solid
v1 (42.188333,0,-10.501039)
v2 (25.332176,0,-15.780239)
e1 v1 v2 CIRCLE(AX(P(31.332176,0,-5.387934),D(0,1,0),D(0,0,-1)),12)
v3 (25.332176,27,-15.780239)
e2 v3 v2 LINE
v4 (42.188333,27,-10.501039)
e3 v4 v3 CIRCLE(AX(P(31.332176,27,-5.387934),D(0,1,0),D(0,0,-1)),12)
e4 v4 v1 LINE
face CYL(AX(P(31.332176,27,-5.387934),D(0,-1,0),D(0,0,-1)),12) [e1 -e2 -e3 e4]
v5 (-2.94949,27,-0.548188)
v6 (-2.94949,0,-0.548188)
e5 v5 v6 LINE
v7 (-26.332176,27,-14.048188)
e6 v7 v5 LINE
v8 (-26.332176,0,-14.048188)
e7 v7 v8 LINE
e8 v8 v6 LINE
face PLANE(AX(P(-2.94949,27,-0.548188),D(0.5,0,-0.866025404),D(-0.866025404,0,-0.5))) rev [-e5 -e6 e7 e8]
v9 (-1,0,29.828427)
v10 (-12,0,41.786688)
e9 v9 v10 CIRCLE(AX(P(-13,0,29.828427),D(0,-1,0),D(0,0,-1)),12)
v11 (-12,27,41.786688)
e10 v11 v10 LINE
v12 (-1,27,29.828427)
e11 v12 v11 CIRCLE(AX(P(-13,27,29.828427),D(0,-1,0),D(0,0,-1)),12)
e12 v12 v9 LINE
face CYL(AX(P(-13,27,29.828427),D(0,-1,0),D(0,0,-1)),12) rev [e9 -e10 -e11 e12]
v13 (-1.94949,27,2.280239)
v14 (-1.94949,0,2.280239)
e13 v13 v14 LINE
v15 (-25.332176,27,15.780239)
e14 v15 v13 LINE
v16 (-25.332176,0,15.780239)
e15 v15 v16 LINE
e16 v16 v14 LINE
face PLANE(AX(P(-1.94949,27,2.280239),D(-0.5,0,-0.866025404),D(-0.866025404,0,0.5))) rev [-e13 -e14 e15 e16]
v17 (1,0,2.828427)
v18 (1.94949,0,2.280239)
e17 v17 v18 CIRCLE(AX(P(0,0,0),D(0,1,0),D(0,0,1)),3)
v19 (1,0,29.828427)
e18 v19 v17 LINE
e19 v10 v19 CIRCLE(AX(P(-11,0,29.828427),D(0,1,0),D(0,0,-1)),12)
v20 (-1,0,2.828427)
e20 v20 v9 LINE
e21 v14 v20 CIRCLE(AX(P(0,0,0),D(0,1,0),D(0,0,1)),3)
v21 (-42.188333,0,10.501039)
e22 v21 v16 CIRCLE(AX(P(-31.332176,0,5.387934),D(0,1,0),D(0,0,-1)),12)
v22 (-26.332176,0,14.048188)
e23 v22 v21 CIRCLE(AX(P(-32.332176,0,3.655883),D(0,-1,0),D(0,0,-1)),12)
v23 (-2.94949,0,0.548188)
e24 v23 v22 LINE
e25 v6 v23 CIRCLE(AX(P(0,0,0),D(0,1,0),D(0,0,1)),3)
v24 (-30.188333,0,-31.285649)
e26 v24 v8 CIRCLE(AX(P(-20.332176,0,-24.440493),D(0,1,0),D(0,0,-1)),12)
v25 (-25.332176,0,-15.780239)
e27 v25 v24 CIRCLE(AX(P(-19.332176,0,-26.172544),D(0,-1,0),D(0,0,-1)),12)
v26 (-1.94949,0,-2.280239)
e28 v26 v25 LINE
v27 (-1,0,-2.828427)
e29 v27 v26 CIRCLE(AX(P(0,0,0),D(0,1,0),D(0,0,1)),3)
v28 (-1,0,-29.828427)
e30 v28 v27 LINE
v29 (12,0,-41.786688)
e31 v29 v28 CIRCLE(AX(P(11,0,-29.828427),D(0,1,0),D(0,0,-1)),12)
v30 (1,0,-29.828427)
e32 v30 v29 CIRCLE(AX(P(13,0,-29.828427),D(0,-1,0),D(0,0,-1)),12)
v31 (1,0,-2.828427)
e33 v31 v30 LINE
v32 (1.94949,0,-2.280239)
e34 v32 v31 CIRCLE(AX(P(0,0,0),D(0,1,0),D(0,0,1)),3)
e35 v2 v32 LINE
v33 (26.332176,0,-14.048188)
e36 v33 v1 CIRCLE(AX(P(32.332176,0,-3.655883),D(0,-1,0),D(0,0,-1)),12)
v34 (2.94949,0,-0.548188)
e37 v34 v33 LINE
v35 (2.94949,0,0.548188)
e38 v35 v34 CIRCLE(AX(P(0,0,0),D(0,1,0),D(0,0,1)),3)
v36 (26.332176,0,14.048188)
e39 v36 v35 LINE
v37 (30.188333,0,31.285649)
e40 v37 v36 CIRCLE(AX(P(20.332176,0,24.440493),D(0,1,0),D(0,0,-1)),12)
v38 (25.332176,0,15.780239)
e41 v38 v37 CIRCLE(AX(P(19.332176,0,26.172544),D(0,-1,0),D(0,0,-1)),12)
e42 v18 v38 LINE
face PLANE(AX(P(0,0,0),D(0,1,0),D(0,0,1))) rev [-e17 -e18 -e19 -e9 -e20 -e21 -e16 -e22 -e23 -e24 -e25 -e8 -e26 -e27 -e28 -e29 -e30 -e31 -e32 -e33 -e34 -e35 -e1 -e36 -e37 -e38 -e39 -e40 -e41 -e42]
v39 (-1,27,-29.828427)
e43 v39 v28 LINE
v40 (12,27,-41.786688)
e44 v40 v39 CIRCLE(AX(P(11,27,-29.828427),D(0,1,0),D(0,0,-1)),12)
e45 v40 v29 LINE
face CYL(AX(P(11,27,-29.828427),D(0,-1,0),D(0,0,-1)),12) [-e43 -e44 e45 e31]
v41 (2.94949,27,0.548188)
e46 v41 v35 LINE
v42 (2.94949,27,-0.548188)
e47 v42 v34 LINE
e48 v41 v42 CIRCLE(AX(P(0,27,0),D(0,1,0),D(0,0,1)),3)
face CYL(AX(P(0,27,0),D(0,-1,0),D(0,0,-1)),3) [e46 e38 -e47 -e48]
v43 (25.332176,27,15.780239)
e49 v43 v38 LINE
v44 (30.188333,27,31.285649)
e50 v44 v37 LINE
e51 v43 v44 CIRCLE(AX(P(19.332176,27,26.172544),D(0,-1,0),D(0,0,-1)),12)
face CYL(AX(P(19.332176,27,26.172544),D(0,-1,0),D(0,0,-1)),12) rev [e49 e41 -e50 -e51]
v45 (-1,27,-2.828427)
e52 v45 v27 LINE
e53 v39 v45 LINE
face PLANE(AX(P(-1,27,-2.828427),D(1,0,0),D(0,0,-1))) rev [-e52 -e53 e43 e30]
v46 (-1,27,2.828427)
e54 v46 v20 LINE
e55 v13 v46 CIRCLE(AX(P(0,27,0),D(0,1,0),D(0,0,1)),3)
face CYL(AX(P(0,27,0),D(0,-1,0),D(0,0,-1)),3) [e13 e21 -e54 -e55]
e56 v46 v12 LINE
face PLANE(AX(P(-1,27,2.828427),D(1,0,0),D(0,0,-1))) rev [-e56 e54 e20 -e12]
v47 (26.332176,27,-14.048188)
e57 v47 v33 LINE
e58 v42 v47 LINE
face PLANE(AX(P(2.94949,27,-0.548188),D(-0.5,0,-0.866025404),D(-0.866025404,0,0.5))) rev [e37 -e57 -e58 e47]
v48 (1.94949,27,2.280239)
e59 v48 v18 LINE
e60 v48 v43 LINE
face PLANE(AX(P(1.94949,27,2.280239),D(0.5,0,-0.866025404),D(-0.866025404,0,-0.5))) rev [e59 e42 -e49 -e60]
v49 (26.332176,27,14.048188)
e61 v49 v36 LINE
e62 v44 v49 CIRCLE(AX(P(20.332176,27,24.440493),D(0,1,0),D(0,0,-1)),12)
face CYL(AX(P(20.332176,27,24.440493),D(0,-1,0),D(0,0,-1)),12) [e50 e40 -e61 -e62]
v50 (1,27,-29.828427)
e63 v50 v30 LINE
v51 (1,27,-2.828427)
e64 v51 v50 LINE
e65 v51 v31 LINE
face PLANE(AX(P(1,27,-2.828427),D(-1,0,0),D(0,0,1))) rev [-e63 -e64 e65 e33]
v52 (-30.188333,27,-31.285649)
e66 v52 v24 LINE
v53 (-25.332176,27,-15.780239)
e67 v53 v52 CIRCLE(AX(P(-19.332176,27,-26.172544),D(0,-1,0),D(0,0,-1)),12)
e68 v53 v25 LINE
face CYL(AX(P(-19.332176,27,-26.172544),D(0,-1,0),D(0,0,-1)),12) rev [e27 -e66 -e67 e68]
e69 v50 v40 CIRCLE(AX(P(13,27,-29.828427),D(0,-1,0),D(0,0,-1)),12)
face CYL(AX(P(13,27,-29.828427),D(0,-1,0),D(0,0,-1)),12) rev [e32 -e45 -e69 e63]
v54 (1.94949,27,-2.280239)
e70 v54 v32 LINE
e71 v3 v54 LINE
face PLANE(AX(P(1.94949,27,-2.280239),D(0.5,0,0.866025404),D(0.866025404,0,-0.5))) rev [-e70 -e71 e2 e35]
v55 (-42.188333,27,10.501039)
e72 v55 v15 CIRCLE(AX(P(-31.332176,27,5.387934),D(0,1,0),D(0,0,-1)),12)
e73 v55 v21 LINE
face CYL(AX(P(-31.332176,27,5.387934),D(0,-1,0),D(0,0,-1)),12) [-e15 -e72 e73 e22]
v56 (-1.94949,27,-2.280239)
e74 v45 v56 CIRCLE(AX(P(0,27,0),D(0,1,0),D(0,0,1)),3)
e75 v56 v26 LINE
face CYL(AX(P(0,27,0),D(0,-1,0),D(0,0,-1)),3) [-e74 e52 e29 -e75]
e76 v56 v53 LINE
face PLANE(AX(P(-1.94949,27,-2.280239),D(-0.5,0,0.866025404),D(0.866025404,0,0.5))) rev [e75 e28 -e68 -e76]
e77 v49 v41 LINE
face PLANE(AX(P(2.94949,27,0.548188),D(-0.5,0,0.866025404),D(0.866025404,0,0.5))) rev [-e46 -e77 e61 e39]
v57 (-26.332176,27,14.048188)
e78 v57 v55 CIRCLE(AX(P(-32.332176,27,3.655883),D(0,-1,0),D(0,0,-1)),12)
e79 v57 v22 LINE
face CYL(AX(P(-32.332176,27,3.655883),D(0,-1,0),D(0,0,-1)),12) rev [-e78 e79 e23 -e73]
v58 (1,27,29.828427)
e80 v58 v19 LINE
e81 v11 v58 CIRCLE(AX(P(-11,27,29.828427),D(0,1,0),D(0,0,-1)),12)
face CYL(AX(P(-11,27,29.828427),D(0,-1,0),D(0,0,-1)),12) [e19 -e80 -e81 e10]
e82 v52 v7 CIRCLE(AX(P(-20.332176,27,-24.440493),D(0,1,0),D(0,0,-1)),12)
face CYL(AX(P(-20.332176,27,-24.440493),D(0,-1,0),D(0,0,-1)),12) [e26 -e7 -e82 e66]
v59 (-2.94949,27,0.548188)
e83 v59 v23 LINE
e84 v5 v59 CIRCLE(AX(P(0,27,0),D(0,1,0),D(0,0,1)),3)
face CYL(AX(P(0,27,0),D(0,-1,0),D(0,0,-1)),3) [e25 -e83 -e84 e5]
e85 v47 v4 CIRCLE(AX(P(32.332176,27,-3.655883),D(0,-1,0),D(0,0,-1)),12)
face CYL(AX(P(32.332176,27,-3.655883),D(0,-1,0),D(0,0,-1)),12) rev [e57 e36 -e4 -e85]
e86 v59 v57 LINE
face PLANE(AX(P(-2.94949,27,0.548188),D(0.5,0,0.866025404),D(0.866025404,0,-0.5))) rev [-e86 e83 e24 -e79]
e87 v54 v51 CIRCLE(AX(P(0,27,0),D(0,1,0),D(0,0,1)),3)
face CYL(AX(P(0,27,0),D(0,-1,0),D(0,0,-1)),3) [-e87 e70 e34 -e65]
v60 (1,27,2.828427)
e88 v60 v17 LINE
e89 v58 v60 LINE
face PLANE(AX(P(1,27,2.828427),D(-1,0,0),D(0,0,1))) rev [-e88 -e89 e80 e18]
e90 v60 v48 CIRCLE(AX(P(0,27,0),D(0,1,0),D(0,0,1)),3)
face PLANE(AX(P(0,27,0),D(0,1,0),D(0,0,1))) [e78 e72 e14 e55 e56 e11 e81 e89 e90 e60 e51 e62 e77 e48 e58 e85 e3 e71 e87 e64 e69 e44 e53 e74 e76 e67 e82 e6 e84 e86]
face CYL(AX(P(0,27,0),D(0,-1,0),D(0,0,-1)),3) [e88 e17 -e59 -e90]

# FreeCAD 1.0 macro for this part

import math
import FreeCAD as App
import Part
import Sketcher
from FreeCAD import Vector
Q = App.Units.Quantity

doc = App.newDocument("Part")
body = doc.addObject("PartDesign::Body", "Body")

sketch1 = body.newObject("Sketcher::SketchObject", "Sketch")
sketch1.AttachmentSupport = (doc.getObject("XZ_Plane"), [""])
sketch1.MapMode = "FlatFace"
sketch1.addGeometry(Part.LineSegment(Vector(25.3, -15.8, 0), Vector(1.9, -2.3, 0)), False)
sketch1.addGeometry(Part.ArcOfCircle(Part.Circle(Vector(0, 0, 0), Vector(0, 0, 1), 3), math.radians(-60), math.radians(-49.47)), False)
sketch1.addGeometry(Part.ArcOfCircle(Part.Circle(Vector(0, 0, 0), Vector(0, 0, 1), 3), math.radians(-70.53), math.radians(-60)), False)
sketch1.addGeometry(Part.LineSegment(Vector(1, -2.8, 0), Vector(1, -29.8, 0)), False)
sketch1.addGeometry(Part.ArcOfCircle(Part.Circle(Vector(13, -29.8, 0), Vector(0, 0, 1), 12), math.radians(-180), math.radians(-95)), False)
sketch1.addGeometry(Part.ArcOfCircle(Part.Circle(Vector(11, -29.8, 0), Vector(0, 0, 1), 12), math.radians(180), math.radians(275)), False)
sketch1.addGeometry(Part.LineSegment(Vector(-1, -29.8, 0), Vector(-1, -2.8, 0)), False)
sketch1.addGeometry(Part.ArcOfCircle(Part.Circle(Vector(0, 0, 0), Vector(0, 0, 1), 3), math.radians(-120), math.radians(-109.47)), False)
sketch1.addGeometry(Part.ArcOfCircle(Part.Circle(Vector(0, 0, 0), Vector(0, 0, 1), 3), math.radians(-130.53), math.radians(-120)), False)
sketch1.addGeometry(Part.LineSegment(Vector(-1.9, -2.3, 0), Vector(-25.3, -15.8, 0)), False)
sketch1.addGeometry(Part.ArcOfCircle(Part.Circle(Vector(-19.3, -26.2, 0), Vector(0, 0, 1), 12), math.radians(120), math.radians(205)), False)
sketch1.addGeometry(Part.ArcOfCircle(Part.Circle(Vector(-20.3, -24.4, 0), Vector(0, 0, 1), 12), math.radians(120), math.radians(215)), False)
sketch1.addGeometry(Part.LineSegment(Vector(-26.3, -14, 0), Vector(-2.9, -0.5, 0)), False)
sketch1.addGeometry(Part.ArcOfCircle(Part.Circle(Vector(0, 0, 0), Vector(0, 0, 1), 3), math.radians(-180), math.radians(-169.47)), False)
sketch1.addGeometry(Part.ArcOfCircle(Part.Circle(Vector(0, 0, 0), Vector(0, 0, 1), 3), math.radians(169.47), math.radians(180)), False)
sketch1.addGeometry(Part.LineSegment(Vector(-2.9, 0.5, 0), Vector(-26.3, 14, 0)), False)
sketch1.addGeometry(Part.ArcOfCircle(Part.Circle(Vector(-32.3, 3.7, 0), Vector(0, 0, 1), 12), math.radians(60), math.radians(145)), False)
sketch1.addGeometry(Part.ArcOfCircle(Part.Circle(Vector(-31.3, 5.4, 0), Vector(0, 0, 1), 12), math.radians(60), math.radians(155)), False)
sketch1.addGeometry(Part.LineSegment(Vector(-25.3, 15.8, 0), Vector(-1.9, 2.3, 0)), False)
sketch1.addGeometry(Part.ArcOfCircle(Part.Circle(Vector(0, 0, 0), Vector(0, 0, 1), 3), math.radians(120), math.radians(130.53)), False)
sketch1.addGeometry(Part.ArcOfCircle(Part.Circle(Vector(0, 0, 0), Vector(0, 0, 1), 3), math.radians(109.47), math.radians(120)), False)
sketch1.addGeometry(Part.LineSegment(Vector(-1, 2.8, 0), Vector(-1, 29.8, 0)), False)
sketch1.addGeometry(Part.ArcOfCircle(Part.Circle(Vector(-13, 29.8, 0), Vector(0, 0, 1), 12), math.radians(0), math.radians(85)), False)
sketch1.addGeometry(Part.ArcOfCircle(Part.Circle(Vector(-11, 29.8, 0), Vector(0, 0, 1), 12), math.radians(0), math.radians(95)), False)
sketch1.addGeometry(Part.LineSegment(Vector(1, 29.8, 0), Vector(1, 2.8, 0)), False)
sketch1.addGeometry(Part.ArcOfCircle(Part.Circle(Vector(0, 0, 0), Vector(0, 0, 1), 3), math.radians(60), math.radians(70.53)), False)
sketch1.addGeometry(Part.ArcOfCircle(Part.Circle(Vector(0, 0, 0), Vector(0, 0, 1), 3), math.radians(49.47), math.radians(60)), False)
sketch1.addGeometry(Part.LineSegment(Vector(1.9, 2.3, 0), Vector(25.3, 15.8, 0)), False)
sketch1.addGeometry(Part.ArcOfCircle(Part.Circle(Vector(19.3, 26.2, 0), Vector(0, 0, 1), 12), math.radians(-60), math.radians(25)), False)
sketch1.addGeometry(Part.ArcOfCircle(Part.Circle(Vector(20.3, 24.4, 0), Vector(0, 0, 1), 12), math.radians(-60), math.radians(35)), False)
sketch1.addGeometry(Part.LineSegment(Vector(26.3, 14, 0), Vector(2.9, 0.5, 0)), False)
sketch1.addGeometry(Part.ArcOfCircle(Part.Circle(Vector(0, 0, 0), Vector(0, 0, 1), 3), math.radians(0), math.radians(10.53)), False)
sketch1.addGeometry(Part.ArcOfCircle(Part.Circle(Vector(0, 0, 0), Vector(0, 0, 1), 3), math.radians(-10.53), math.radians(0)), False)
sketch1.addGeometry(Part.LineSegment(Vector(2.9, -0.5, 0), Vector(26.3, -14, 0)), False)
sketch1.addGeometry(Part.ArcOfCircle(Part.Circle(Vector(32.3, -3.7, 0), Vector(0, 0, 1), 12), math.radians(-120), math.radians(-35)), False)
sketch1.addGeometry(Part.ArcOfCircle(Part.Circle(Vector(31.3, -5.4, 0), Vector(0, 0, 1), 12), math.radians(-120), math.radians(-25)), False)
sketch1.addConstraint(Sketcher.Constraint("Coincident", 0, 2, 1, 2))
sketch1.addConstraint(Sketcher.Constraint("Tangent", 1, 1, 2, 2))
sketch1.addConstraint(Sketcher.Constraint("Coincident", 2, 1, 3, 1))
sketch1.addConstraint(Sketcher.Constraint("Tangent", 3, 2, 4, 1))
sketch1.addConstraint(Sketcher.Constraint("Coincident", 4, 2, 5, 2))
sketch1.addConstraint(Sketcher.Constraint("Tangent", 5, 1, 6, 1))
sketch1.addConstraint(Sketcher.Constraint("Coincident", 6, 2, 7, 2))
sketch1.addConstraint(Sketcher.Constraint("Tangent", 7, 1, 8, 2))
sketch1.addConstraint(Sketcher.Constraint("Coincident", 8, 1, 9, 1))
sketch1.addConstraint(Sketcher.Constraint("Tangent", 9, 2, 10, 1))
sketch1.addConstraint(Sketcher.Constraint("Coincident", 10, 2, 11, 2))
sketch1.addConstraint(Sketcher.Constraint("Tangent", 11, 1, 12, 1))
sketch1.addConstraint(Sketcher.Constraint("Coincident", 12, 2, 13, 2))
sketch1.addConstraint(Sketcher.Constraint("Tangent", 13, 1, 14, 2))
sketch1.addConstraint(Sketcher.Constraint("Coincident", 14, 1, 15, 1))
sketch1.addConstraint(Sketcher.Constraint("Tangent", 15, 2, 16, 1))
sketch1.addConstraint(Sketcher.Constraint("Coincident", 16, 2, 17, 2))
sketch1.addConstraint(Sketcher.Constraint("Tangent", 17, 1, 18, 1))
sketch1.addConstraint(Sketcher.Constraint("Coincident", 18, 2, 19, 2))
sketch1.addConstraint(Sketcher.Constraint("Tangent", 19, 1, 20, 2))
sketch1.addConstraint(Sketcher.Constraint("Coincident", 20, 1, 21, 1))
sketch1.addConstraint(Sketcher.Constraint("Tangent", 21, 2, 22, 1))
sketch1.addConstraint(Sketcher.Constraint("Coincident", 22, 2, 23, 2))
sketch1.addConstraint(Sketcher.Constraint("Tangent", 23, 1, 24, 1))
sketch1.addConstraint(Sketcher.Constraint("Coincident", 24, 2, 25, 2))
sketch1.addConstraint(Sketcher.Constraint("Tangent", 25, 1, 26, 2))
sketch1.addConstraint(Sketcher.Constraint("Coincident", 26, 1, 27, 1))
sketch1.addConstraint(Sketcher.Constraint("Tangent", 27, 2, 28, 1))
sketch1.addConstraint(Sketcher.Constraint("Coincident", 28, 2, 29, 2))
sketch1.addConstraint(Sketcher.Constraint("Tangent", 29, 1, 30, 1))
sketch1.addConstraint(Sketcher.Constraint("Coincident", 30, 2, 31, 2))
sketch1.addConstraint(Sketcher.Constraint("Tangent", 31, 1, 32, 2))
sketch1.addConstraint(Sketcher.Constraint("Coincident", 32, 1, 33, 1))
sketch1.addConstraint(Sketcher.Constraint("Tangent", 33, 2, 34, 1))
sketch1.addConstraint(Sketcher.Constraint("Coincident", 34, 2, 35, 2))
sketch1.addConstraint(Sketcher.Constraint("Tangent", 35, 1, 0, 1))
sketch1.addConstraint(Sketcher.Constraint("Vertical", 3))
sketch1.addConstraint(Sketcher.Constraint("Vertical", 6))
sketch1.addConstraint(Sketcher.Constraint("Vertical", 21))
sketch1.addConstraint(Sketcher.Constraint("Vertical", 24))
sketch1.addConstraint(Sketcher.Constraint("Coincident", 1, 3, -1, 1))
sketch1.addConstraint(Sketcher.Constraint("Coincident", 7, 3, -1, 1))
sketch1.addConstraint(Sketcher.Constraint("Coincident", 13, 3, -1, 1))
sketch1.addConstraint(Sketcher.Constraint("Coincident", 19, 3, -1, 1))
sketch1.addConstraint(Sketcher.Constraint("Coincident", 25, 3, -1, 1))
sketch1.addConstraint(Sketcher.Constraint("Coincident", 31, 3, -1, 1))
sketch1.addConstraint(Sketcher.Constraint("Equal", 1, 2))
sketch1.addConstraint(Sketcher.Constraint("Equal", 4, 5))
sketch1.addConstraint(Sketcher.Constraint("Equal", 2, 7))
sketch1.addConstraint(Sketcher.Constraint("Equal", 7, 8))
sketch1.addConstraint(Sketcher.Constraint("Equal", 5, 10))
sketch1.addConstraint(Sketcher.Constraint("Equal", 10, 11))
sketch1.addConstraint(Sketcher.Constraint("Equal", 8, 13))
sketch1.addConstraint(Sketcher.Constraint("Equal", 13, 14))
sketch1.addConstraint(Sketcher.Constraint("Equal", 11, 16))
sketch1.addConstraint(Sketcher.Constraint("Equal", 16, 17))
sketch1.addConstraint(Sketcher.Constraint("Equal", 14, 19))
sketch1.addConstraint(Sketcher.Constraint("Equal", 19, 20))
sketch1.addConstraint(Sketcher.Constraint("Equal", 17, 22))
sketch1.addConstraint(Sketcher.Constraint("Equal", 22, 23))
sketch1.addConstraint(Sketcher.Constraint("Equal", 20, 25))
sketch1.addConstraint(Sketcher.Constraint("Equal", 25, 26))
sketch1.addConstraint(Sketcher.Constraint("Equal", 23, 28))
sketch1.addConstraint(Sketcher.Constraint("Equal", 28, 29))
sketch1.addConstraint(Sketcher.Constraint("Equal", 26, 31))
sketch1.addConstraint(Sketcher.Constraint("Equal", 31, 32))
sketch1.addConstraint(Sketcher.Constraint("Equal", 29, 34))
sketch1.addConstraint(Sketcher.Constraint("Equal", 34, 35))
sketch1.addConstraint(Sketcher.Constraint("Symmetric", 4, 3, 22, 3, -1, 1))
sketch1.addConstraint(Sketcher.Constraint("Symmetric", 5, 3, 23, 3, -1, 1))
sketch1.addConstraint(Sketcher.Constraint("Symmetric", 10, 3, 28, 3, -1, 1))
sketch1.addConstraint(Sketcher.Constraint("Symmetric", 11, 3, 29, 3, -1, 1))
sketch1.addConstraint(Sketcher.Constraint("Symmetric", 16, 3, 34, 3, -1, 1))
sketch1.addConstraint(Sketcher.Constraint("Symmetric", 17, 3, 35, 3, -1, 1))
sketch1.addConstraint(Sketcher.Constraint("Symmetric", 3, 2, 5, 1, -2))
sketch1.addConstraint(Sketcher.Constraint("Symmetric", 17, 1, 27, 2, -2))
sketch1.addConstraint(Sketcher.Constraint("Symmetric", 15, 2, 29, 1, -2))
sketch1.addConstraint(Sketcher.Constraint("PointOnObject", 13, 1, -1))
sketch1.addConstraint(Sketcher.Constraint("PointOnObject", 31, 1, -1))
sketch1.addConstraint(Sketcher.Constraint("Parallel", 9, 12))
sketch1.addConstraint(Sketcher.Constraint("Parallel", 0, 15))
sketch1.addConstraint(Sketcher.Constraint("Parallel", 15, 18))
sketch1.addConstraint(Sketcher.Constraint("Parallel", 12, 27))
sketch1.addConstraint(Sketcher.Constraint("Parallel", 27, 30))
sketch1.addConstraint(Sketcher.Constraint("Parallel", 18, 33))
sketch1.addConstraint(Sketcher.Constraint("Horizontal", 1, 1, 7, 1))
sketch1.addConstraint(Sketcher.Constraint("Horizontal", 0, 2, 8, 1))
sketch1.addConstraint(Sketcher.Constraint("Horizontal", 19, 1, 25, 1))
sketch1.addConstraint(Sketcher.Constraint("Vertical", 7, 1, 19, 1))
sketch1.addConstraint(Sketcher.Constraint("Equal", 9, 12))
sketch1.addConstraint(Sketcher.Constraint("Radius", 1, 3.0))
sketch1.addConstraint(Sketcher.Constraint("Radius", 4, 12.0))
sketch1.addConstraint(Sketcher.Constraint("DistanceY", 3, 2, 3, 1, 27.0))
sketch1.addConstraint(Sketcher.Constraint("Angle", 0, Q("150 deg")))
sketch1.addConstraint(Sketcher.Constraint("Distance", 0, 27.0))
sketch1.addConstraint(Sketcher.Constraint("DistanceX", -1, 1, 4, 3, 13.0))
sketch1.addConstraint(Sketcher.Constraint("DistanceX", 11, 3, 10, 3, 1.0))
sketch1.addConstraint(Sketcher.Constraint("DistanceX", -1, 1, 1, 1, 1.5))
sketch1.addConstraint(Sketcher.Constraint("DistanceY", 16, 2, 17, 1, 5.2792))
pad1 = body.newObject("PartDesign::Pad", "Pad")
pad1.Profile = sketch1
pad1.Length = 27
pad1.Reversed = True

doc.recompute()
